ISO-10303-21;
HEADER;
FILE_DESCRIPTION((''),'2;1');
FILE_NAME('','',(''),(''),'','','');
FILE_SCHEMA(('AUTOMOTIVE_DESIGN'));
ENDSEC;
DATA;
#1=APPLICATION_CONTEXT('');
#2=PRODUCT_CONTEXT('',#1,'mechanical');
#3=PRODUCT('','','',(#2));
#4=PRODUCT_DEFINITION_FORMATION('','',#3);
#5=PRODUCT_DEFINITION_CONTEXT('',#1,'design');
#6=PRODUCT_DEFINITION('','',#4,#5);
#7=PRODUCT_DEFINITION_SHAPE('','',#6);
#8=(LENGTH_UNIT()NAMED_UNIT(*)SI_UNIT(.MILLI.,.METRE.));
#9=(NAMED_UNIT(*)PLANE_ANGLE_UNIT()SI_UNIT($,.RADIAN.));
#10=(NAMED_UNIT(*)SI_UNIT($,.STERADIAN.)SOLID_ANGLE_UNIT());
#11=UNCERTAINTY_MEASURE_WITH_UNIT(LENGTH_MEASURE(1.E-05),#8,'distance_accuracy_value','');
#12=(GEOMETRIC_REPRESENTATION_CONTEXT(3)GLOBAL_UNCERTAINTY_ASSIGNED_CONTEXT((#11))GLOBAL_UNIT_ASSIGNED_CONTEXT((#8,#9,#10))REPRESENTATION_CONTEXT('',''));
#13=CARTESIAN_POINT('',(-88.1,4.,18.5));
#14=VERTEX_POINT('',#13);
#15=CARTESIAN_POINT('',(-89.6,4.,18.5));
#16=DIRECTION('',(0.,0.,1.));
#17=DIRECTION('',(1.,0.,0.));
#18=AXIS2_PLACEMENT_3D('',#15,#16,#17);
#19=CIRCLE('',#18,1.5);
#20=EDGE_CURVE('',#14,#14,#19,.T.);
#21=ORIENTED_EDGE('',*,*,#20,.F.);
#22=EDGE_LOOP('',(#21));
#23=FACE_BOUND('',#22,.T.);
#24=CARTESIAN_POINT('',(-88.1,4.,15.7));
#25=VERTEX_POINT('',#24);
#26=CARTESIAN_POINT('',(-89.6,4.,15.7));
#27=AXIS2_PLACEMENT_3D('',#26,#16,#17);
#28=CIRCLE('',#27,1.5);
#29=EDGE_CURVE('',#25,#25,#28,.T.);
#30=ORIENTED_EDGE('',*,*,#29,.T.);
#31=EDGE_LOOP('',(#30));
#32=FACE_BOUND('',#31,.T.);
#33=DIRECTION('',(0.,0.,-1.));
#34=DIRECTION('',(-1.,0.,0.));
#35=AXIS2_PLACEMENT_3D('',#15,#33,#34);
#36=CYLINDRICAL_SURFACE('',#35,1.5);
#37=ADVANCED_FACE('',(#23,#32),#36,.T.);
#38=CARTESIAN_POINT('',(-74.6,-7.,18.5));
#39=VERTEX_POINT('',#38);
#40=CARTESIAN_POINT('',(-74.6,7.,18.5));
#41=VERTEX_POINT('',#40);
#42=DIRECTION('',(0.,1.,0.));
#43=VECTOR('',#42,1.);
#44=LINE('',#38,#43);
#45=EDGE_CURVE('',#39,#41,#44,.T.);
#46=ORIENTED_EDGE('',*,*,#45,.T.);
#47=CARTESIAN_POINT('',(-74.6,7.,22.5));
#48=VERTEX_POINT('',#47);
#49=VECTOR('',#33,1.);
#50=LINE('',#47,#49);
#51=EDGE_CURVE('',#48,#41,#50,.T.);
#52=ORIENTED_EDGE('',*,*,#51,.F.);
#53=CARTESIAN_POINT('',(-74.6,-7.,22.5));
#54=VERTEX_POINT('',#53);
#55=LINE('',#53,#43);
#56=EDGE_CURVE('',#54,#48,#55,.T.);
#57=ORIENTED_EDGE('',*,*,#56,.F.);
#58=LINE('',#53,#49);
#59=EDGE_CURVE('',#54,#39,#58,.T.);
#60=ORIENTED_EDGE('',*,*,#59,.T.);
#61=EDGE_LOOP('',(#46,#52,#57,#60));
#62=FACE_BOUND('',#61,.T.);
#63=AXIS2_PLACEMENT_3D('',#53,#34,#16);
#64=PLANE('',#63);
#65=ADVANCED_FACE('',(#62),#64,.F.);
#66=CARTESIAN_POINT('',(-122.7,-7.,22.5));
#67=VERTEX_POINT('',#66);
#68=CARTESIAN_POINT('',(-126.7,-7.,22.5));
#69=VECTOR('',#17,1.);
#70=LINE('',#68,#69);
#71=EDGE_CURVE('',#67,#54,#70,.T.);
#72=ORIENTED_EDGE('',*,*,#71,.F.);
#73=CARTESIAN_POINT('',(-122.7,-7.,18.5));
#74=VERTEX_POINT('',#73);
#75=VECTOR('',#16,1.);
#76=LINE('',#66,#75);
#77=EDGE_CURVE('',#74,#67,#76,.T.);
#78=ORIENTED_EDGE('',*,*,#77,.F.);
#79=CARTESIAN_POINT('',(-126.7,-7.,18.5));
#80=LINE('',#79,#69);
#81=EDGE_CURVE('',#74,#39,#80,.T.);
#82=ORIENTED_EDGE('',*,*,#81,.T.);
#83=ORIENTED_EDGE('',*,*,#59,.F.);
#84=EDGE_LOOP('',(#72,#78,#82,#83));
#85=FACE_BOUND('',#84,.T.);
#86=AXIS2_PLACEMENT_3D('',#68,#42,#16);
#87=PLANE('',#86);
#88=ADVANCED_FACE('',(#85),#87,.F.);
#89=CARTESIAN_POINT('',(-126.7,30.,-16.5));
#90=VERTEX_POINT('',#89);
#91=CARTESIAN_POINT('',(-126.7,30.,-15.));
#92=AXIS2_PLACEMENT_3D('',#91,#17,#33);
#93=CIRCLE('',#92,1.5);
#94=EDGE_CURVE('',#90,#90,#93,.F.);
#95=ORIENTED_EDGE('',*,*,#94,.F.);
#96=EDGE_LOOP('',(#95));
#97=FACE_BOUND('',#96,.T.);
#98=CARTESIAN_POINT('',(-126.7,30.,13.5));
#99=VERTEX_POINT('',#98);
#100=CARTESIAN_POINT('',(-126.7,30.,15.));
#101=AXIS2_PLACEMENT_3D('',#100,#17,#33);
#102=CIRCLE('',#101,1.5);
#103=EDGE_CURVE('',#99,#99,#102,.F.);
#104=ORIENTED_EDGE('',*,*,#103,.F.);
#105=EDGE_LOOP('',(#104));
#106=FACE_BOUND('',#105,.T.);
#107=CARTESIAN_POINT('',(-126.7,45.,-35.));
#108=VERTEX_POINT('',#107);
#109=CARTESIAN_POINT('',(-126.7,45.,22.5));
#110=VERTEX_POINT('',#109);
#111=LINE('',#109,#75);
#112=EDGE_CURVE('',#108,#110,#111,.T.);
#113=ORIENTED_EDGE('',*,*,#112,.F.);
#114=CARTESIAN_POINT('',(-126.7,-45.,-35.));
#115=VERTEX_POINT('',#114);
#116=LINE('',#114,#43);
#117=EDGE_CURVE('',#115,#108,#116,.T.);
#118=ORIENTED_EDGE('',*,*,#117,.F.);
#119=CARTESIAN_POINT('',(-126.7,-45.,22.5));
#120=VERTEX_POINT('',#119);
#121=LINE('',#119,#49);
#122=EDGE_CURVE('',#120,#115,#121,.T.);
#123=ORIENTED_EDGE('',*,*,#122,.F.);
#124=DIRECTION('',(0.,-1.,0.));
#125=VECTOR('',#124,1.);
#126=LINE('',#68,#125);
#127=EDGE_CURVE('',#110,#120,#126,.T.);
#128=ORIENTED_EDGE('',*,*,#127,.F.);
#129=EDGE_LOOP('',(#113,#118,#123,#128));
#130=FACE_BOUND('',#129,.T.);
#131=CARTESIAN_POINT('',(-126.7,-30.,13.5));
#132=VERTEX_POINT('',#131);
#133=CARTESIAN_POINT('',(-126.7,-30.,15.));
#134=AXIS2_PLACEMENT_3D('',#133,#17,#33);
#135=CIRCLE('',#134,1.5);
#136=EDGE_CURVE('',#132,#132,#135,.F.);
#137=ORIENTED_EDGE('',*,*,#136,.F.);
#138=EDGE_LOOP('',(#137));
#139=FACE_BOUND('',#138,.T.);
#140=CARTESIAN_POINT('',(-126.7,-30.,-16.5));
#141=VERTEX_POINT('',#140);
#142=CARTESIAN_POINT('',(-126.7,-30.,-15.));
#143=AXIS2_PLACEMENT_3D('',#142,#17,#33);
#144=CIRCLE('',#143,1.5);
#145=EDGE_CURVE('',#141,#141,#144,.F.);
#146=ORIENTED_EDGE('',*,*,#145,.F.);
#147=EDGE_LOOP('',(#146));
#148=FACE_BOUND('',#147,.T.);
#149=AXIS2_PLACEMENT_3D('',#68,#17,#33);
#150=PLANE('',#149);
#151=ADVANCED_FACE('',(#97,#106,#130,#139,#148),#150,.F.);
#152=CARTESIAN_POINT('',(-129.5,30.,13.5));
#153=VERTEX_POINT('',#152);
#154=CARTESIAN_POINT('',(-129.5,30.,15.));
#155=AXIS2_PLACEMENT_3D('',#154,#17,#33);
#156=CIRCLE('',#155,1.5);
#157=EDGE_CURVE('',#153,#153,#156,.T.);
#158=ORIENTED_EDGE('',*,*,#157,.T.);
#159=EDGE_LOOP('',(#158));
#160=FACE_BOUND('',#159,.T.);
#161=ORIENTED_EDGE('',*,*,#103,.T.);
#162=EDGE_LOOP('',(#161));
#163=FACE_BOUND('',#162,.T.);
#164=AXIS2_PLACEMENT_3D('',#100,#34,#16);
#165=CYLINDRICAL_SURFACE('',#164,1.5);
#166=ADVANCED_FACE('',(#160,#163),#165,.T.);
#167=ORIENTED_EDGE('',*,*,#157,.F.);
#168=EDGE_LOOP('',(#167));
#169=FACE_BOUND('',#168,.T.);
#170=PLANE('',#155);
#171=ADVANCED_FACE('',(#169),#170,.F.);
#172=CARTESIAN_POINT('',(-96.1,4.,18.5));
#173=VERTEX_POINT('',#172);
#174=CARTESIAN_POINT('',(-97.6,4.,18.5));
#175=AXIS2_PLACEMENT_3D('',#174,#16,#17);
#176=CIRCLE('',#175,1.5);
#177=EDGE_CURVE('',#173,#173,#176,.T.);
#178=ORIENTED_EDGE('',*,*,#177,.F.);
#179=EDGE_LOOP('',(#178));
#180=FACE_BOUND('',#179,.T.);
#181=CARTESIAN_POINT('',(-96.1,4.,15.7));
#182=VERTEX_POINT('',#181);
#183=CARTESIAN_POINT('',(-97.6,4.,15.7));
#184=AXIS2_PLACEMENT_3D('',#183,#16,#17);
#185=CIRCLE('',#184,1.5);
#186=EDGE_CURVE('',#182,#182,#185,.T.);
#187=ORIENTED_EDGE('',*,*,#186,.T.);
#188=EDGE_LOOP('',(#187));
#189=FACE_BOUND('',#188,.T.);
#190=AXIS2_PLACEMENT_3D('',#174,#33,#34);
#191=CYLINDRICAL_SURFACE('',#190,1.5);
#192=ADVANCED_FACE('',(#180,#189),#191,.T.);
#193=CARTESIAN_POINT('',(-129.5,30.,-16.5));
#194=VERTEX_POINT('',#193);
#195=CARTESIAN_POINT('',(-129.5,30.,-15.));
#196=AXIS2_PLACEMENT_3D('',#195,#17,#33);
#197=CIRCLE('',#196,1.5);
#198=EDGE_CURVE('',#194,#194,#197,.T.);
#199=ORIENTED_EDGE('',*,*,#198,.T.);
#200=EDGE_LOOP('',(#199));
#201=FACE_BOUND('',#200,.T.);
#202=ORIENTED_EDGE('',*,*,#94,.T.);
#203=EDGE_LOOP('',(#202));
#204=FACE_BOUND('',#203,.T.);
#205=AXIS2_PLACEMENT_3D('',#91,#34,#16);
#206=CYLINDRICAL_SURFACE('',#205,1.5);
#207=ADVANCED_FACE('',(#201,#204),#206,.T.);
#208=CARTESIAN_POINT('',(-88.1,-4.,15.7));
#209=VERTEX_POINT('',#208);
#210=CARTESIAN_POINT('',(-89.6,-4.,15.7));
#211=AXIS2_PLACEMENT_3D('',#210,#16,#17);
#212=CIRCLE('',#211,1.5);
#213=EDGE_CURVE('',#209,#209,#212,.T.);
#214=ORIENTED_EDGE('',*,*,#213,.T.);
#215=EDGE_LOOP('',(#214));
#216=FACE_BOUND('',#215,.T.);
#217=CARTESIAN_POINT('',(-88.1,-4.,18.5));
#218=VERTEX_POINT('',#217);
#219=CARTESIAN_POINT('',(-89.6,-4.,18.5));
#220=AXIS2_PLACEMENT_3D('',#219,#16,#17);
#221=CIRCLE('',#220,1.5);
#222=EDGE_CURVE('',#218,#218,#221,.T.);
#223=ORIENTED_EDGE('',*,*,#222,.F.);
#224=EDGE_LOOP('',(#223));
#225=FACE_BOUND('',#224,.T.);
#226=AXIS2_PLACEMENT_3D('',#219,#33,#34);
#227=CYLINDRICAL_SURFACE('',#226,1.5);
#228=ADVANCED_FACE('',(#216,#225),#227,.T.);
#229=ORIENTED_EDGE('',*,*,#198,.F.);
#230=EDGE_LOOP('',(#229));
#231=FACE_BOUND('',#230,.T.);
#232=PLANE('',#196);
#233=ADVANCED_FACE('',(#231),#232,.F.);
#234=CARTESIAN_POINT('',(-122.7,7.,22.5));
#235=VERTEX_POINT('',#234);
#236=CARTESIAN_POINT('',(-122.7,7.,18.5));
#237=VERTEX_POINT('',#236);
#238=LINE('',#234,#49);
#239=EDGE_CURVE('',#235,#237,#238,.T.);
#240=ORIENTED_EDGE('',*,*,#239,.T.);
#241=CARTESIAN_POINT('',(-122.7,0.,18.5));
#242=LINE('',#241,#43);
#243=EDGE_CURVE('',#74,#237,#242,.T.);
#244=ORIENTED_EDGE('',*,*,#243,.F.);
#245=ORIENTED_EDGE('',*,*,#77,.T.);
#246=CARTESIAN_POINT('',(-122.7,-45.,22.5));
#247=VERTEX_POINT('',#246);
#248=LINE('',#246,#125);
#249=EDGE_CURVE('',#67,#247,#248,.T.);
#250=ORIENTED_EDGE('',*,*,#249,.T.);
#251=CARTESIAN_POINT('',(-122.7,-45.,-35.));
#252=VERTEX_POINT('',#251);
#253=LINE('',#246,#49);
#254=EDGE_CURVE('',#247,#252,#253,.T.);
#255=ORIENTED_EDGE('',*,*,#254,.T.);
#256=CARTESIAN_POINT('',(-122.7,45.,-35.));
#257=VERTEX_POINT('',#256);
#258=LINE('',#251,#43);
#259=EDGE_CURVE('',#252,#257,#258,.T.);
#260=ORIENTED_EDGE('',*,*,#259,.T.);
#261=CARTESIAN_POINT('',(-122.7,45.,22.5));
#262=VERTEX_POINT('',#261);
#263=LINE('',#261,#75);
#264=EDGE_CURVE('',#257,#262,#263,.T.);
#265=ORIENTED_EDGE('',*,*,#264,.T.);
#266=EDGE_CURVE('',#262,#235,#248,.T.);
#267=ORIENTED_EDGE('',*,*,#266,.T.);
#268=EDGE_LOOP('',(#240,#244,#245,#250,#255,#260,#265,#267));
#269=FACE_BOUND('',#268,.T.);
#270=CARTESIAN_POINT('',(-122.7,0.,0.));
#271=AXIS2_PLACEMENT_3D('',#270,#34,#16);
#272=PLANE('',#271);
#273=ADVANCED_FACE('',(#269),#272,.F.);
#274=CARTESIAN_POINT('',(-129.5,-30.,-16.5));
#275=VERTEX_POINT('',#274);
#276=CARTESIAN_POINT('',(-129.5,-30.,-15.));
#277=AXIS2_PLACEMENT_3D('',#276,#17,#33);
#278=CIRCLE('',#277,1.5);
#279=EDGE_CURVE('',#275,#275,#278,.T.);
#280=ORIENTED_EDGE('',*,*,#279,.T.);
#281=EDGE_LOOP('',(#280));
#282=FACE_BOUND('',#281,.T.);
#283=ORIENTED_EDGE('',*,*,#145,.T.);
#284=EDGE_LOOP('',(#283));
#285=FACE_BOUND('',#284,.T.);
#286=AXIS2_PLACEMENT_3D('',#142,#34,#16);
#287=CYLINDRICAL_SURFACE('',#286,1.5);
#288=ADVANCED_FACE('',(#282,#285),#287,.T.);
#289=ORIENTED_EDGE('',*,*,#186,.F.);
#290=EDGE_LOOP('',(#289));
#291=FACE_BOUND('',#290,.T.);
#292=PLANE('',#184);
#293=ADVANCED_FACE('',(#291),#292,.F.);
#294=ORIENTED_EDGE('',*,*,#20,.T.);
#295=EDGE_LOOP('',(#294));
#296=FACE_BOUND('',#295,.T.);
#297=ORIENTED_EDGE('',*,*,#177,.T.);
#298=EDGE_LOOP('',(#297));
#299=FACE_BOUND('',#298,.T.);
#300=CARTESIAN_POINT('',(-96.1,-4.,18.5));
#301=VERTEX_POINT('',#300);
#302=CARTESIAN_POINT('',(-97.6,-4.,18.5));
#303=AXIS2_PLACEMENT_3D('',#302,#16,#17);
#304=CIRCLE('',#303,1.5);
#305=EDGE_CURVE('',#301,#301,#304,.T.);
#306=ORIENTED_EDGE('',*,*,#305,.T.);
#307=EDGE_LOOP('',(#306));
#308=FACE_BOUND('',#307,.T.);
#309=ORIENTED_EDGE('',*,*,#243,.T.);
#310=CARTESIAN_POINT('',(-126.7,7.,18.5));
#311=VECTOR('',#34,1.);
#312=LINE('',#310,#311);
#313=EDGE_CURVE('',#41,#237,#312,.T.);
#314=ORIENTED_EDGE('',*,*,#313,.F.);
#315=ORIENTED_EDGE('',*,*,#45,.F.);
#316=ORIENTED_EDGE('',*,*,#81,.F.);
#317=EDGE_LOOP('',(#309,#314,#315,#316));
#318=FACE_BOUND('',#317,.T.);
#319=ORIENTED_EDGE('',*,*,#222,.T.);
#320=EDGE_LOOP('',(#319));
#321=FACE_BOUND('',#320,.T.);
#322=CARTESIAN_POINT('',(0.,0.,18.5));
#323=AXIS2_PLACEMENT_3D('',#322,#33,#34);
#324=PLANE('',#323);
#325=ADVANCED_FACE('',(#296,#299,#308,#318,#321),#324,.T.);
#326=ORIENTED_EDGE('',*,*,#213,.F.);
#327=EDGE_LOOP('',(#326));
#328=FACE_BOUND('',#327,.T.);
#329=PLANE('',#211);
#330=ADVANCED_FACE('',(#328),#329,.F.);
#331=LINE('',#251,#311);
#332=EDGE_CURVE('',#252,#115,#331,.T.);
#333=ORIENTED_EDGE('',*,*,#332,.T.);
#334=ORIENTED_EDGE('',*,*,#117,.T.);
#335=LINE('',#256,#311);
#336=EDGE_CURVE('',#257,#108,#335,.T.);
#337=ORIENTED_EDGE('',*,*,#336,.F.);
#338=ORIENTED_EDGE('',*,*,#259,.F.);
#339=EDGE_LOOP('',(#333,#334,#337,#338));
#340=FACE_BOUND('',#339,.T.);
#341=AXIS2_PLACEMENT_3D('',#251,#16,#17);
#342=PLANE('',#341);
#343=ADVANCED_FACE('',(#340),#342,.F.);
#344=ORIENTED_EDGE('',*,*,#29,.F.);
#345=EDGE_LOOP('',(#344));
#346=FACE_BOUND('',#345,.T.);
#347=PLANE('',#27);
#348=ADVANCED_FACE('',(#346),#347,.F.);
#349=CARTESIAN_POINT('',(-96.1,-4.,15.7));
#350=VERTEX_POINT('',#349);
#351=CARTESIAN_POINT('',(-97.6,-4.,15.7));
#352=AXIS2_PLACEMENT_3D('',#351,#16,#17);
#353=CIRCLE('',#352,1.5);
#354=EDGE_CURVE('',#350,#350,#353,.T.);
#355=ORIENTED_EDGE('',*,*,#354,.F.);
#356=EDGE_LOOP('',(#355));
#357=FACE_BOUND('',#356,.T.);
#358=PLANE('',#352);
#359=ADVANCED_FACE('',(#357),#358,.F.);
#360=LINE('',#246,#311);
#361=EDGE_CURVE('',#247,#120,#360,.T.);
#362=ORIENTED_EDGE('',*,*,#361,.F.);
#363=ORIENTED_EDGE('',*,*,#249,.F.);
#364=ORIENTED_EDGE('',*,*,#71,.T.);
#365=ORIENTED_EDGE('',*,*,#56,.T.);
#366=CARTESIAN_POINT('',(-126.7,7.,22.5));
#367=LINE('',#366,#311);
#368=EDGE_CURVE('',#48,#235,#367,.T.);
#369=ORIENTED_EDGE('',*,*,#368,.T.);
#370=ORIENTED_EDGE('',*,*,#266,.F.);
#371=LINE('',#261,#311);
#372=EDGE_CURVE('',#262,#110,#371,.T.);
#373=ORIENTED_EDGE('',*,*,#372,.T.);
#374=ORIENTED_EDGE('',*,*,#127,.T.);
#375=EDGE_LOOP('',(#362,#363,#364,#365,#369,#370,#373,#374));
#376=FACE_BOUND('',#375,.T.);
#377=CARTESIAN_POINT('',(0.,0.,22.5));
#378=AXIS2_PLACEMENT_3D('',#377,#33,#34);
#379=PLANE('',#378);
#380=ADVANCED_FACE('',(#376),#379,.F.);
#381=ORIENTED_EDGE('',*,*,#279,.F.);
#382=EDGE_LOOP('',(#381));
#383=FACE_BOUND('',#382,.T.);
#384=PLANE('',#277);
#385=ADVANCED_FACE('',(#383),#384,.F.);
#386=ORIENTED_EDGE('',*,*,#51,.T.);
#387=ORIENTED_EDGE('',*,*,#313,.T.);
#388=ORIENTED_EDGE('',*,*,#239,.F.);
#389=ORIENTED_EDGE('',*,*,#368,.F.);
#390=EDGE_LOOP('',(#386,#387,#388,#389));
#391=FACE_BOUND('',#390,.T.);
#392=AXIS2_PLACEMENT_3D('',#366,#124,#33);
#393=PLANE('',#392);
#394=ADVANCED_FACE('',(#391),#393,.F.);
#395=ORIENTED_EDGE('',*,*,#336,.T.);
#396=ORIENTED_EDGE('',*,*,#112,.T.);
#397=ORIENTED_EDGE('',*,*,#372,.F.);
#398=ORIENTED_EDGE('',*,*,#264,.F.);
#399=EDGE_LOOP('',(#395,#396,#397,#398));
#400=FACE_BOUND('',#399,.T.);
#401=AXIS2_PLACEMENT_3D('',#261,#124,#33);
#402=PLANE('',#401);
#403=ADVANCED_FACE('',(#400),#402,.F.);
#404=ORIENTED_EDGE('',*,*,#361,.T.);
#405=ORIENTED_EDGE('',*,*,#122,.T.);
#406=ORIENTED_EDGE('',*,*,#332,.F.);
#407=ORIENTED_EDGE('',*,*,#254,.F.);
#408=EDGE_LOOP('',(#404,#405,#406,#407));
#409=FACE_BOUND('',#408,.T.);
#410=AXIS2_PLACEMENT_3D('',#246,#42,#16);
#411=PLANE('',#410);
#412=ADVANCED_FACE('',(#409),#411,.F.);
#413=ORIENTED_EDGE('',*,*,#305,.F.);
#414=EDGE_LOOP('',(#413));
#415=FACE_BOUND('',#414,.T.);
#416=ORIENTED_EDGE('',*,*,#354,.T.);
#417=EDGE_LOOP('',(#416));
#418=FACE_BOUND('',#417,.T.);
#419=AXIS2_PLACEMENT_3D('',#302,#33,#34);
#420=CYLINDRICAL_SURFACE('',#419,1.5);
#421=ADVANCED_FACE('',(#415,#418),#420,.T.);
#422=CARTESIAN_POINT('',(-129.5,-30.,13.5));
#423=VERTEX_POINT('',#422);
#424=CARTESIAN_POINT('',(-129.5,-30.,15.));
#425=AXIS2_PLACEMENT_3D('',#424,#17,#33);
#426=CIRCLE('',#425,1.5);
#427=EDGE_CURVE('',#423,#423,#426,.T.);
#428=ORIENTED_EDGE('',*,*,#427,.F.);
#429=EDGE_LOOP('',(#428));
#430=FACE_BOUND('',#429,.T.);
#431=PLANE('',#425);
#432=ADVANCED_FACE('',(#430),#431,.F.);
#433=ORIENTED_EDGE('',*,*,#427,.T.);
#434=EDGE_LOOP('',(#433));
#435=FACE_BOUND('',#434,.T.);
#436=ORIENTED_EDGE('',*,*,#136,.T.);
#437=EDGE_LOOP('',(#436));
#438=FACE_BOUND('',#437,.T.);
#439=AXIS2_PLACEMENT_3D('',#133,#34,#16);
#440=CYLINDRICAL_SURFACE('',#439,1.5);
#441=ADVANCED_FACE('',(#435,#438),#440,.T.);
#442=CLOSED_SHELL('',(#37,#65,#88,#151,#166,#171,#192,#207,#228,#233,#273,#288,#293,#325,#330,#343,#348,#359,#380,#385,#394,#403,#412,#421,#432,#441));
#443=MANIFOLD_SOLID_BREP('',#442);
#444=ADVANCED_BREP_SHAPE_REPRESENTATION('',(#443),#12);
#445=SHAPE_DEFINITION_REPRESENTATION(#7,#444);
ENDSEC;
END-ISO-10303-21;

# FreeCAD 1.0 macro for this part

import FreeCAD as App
import Part
import Sketcher

V = App.Vector

doc = App.newDocument("Part")
body = doc.addObject("PartDesign::Body", "Body")

# Sketch on XY plane
sketch1 = doc.addObject("Sketcher::SketchObject", "Sketch")
body.addObject(sketch1)
sketch1.AttachmentSupport = (doc.XY_Plane, [""])
sketch1.MapMode = "FlatFace"
sketch1.AttachmentOffset = App.Placement(V(0, 0, 18.5), App.Rotation())
sketch1.addGeometry([
    Part.LineSegment(V(-127, 7, 0), V(-127, -7, 0)),
    Part.LineSegment(V(-127, -7, 0), V(-75, -7, 0)),
    Part.LineSegment(V(-75, -7, 0), V(-75, 7, 0)),
    Part.LineSegment(V(-75, 7, 0), V(-127, 7, 0)),
], False)
sketch1.addConstraint([
    Sketcher.Constraint("Coincident", 0, 2, 1, 1),
    Sketcher.Constraint("Coincident", 1, 2, 2, 1),
    Sketcher.Constraint("Coincident", 2, 2, 3, 1),
    Sketcher.Constraint("Coincident", 3, 2, 0, 1),
    Sketcher.Constraint("Vertical", 0),
    Sketcher.Constraint("Horizontal", 1),
    Sketcher.Constraint("Vertical", 2),
    Sketcher.Constraint("Horizontal", 3),
    Sketcher.Constraint("DistanceY", 0, 2, 0, 1, 14.0),
    Sketcher.Constraint("DistanceX", 1, 1, 1, 2, 52.1),
    Sketcher.Constraint("DistanceY", 0, 2, -1, 1, 7.0),
    Sketcher.Constraint("DistanceX", 0, 2, -1, 1, 126.7),
])
pad1 = doc.addObject("PartDesign::Pad", "Pad")
body.addObject(pad1)
pad1.Profile = sketch1
pad1.Length = 4

# Sketch on YZ plane
sketch2 = doc.addObject("Sketcher::SketchObject", "Sketch001")
body.addObject(sketch2)
sketch2.AttachmentSupport = (doc.YZ_Plane, [""])
sketch2.MapMode = "FlatFace"
sketch2.AttachmentOffset = App.Placement(V(0, 0, -126.7), App.Rotation())
sketch2.addGeometry([
    Part.LineSegment(V(45, 22, 0), V(-45, 22, 0)),
    Part.LineSegment(V(-45, 22, 0), V(-45, -35, 0)),
    Part.LineSegment(V(-45, -35, 0), V(45, -35, 0)),
    Part.LineSegment(V(45, -35, 0), V(45, 22, 0)),
], False)
sketch2.addConstraint([
    Sketcher.Constraint("Coincident", 0, 2, 1, 1),
    Sketcher.Constraint("Coincident", 1, 2, 2, 1),
    Sketcher.Constraint("Coincident", 2, 2, 3, 1),
    Sketcher.Constraint("Coincident", 3, 2, 0, 1),
    Sketcher.Constraint("Horizontal", 0),
    Sketcher.Constraint("Vertical", 1),
    Sketcher.Constraint("Horizontal", 2),
    Sketcher.Constraint("Vertical", 3),
    Sketcher.Constraint("DistanceX", 0, 2, 0, 1, 90.0),
    Sketcher.Constraint("DistanceY", 1, 2, 1, 1, 57.5),
    Sketcher.Constraint("DistanceX", 0, 2, -1, 1, 45.0),
    Sketcher.Constraint("DistanceY", 1, 2, -1, 1, 35.0),
])
pad2 = doc.addObject("PartDesign::Pad", "Pad001")
body.addObject(pad2)
pad2.Profile = sketch2
pad2.Length = 4

# Sketch on XY plane
sketch3 = doc.addObject("Sketcher::SketchObject", "Sketch002")
body.addObject(sketch3)
sketch3.AttachmentSupport = (doc.XY_Plane, [""])
sketch3.MapMode = "FlatFace"
sketch3.AttachmentOffset = App.Placement(V(0, 0, 15.7), App.Rotation())
sketch3.addGeometry([
    Part.Circle(V(-89.6, 4, 0), V(0, 0, 1), 1.5),
    Part.Circle(V(-89.6, -4, 0), V(0, 0, 1), 1.5),
    Part.Circle(V(-97.6, 4, 0), V(0, 0, 1), 1.5),
    Part.Circle(V(-97.6, -4, 0), V(0, 0, 1), 1.5),
], False)
sketch3.addConstraint([
    Sketcher.Constraint("Equal", 0, 1),
    Sketcher.Constraint("Equal", 1, 2),
    Sketcher.Constraint("Equal", 2, 3),
    Sketcher.Constraint("Symmetric", 0, 3, 1, 3, -1),
    Sketcher.Constraint("Symmetric", 2, 3, 3, 3, -1),
    Sketcher.Constraint("Horizontal", 0, 3, 2, 3),
    Sketcher.Constraint("Diameter", 0, 3.0),
    Sketcher.Constraint("DistanceY", -1, 1, 0, 3, 4.0),
    Sketcher.Constraint("DistanceX", 2, 3, 0, 3, 8.0),
    Sketcher.Constraint("DistanceX", 0, 3, -1, 1, 89.6),
])
pad3 = doc.addObject("PartDesign::Pad", "Pad002")
body.addObject(pad3)
pad3.Profile = sketch3
pad3.Length = 2.8

# Sketch on YZ plane
sketch4 = doc.addObject("Sketcher::SketchObject", "Sketch003")
body.addObject(sketch4)
sketch4.AttachmentSupport = (doc.YZ_Plane, [""])
sketch4.MapMode = "FlatFace"
sketch4.AttachmentOffset = App.Placement(V(0, 0, -129.5), App.Rotation())
sketch4.addGeometry([
    Part.Circle(V(-30, -15, 0), V(0, 0, 1), 1.5),
    Part.Circle(V(-30, 15, 0), V(0, 0, 1), 1.5),
    Part.Circle(V(30, -15, 0), V(0, 0, 1), 1.5),
    Part.Circle(V(30, 15, 0), V(0, 0, 1), 1.5),
], False)
sketch4.addConstraint([
    Sketcher.Constraint("Equal", 0, 1),
    Sketcher.Constraint("Equal", 1, 2),
    Sketcher.Constraint("Equal", 2, 3),
    Sketcher.Constraint("Symmetric", 1, 3, 2, 3, -1, 1),
    Sketcher.Constraint("Symmetric", 0, 3, 3, 3, -1, 1),
    Sketcher.Constraint("Symmetric", 0, 3, 2, 3, -2),
    Sketcher.Constraint("Diameter", 0, 3.0),
    Sketcher.Constraint("DistanceX", 0, 3, -1, 1, 30.0),
    Sketcher.Constraint("DistanceY", 0, 3, -1, 1, 15.0),
])
pad4 = doc.addObject("PartDesign::Pad", "Pad003")
body.addObject(pad4)
pad4.Profile = sketch4
pad4.Length = 2.8

doc.recompute()
